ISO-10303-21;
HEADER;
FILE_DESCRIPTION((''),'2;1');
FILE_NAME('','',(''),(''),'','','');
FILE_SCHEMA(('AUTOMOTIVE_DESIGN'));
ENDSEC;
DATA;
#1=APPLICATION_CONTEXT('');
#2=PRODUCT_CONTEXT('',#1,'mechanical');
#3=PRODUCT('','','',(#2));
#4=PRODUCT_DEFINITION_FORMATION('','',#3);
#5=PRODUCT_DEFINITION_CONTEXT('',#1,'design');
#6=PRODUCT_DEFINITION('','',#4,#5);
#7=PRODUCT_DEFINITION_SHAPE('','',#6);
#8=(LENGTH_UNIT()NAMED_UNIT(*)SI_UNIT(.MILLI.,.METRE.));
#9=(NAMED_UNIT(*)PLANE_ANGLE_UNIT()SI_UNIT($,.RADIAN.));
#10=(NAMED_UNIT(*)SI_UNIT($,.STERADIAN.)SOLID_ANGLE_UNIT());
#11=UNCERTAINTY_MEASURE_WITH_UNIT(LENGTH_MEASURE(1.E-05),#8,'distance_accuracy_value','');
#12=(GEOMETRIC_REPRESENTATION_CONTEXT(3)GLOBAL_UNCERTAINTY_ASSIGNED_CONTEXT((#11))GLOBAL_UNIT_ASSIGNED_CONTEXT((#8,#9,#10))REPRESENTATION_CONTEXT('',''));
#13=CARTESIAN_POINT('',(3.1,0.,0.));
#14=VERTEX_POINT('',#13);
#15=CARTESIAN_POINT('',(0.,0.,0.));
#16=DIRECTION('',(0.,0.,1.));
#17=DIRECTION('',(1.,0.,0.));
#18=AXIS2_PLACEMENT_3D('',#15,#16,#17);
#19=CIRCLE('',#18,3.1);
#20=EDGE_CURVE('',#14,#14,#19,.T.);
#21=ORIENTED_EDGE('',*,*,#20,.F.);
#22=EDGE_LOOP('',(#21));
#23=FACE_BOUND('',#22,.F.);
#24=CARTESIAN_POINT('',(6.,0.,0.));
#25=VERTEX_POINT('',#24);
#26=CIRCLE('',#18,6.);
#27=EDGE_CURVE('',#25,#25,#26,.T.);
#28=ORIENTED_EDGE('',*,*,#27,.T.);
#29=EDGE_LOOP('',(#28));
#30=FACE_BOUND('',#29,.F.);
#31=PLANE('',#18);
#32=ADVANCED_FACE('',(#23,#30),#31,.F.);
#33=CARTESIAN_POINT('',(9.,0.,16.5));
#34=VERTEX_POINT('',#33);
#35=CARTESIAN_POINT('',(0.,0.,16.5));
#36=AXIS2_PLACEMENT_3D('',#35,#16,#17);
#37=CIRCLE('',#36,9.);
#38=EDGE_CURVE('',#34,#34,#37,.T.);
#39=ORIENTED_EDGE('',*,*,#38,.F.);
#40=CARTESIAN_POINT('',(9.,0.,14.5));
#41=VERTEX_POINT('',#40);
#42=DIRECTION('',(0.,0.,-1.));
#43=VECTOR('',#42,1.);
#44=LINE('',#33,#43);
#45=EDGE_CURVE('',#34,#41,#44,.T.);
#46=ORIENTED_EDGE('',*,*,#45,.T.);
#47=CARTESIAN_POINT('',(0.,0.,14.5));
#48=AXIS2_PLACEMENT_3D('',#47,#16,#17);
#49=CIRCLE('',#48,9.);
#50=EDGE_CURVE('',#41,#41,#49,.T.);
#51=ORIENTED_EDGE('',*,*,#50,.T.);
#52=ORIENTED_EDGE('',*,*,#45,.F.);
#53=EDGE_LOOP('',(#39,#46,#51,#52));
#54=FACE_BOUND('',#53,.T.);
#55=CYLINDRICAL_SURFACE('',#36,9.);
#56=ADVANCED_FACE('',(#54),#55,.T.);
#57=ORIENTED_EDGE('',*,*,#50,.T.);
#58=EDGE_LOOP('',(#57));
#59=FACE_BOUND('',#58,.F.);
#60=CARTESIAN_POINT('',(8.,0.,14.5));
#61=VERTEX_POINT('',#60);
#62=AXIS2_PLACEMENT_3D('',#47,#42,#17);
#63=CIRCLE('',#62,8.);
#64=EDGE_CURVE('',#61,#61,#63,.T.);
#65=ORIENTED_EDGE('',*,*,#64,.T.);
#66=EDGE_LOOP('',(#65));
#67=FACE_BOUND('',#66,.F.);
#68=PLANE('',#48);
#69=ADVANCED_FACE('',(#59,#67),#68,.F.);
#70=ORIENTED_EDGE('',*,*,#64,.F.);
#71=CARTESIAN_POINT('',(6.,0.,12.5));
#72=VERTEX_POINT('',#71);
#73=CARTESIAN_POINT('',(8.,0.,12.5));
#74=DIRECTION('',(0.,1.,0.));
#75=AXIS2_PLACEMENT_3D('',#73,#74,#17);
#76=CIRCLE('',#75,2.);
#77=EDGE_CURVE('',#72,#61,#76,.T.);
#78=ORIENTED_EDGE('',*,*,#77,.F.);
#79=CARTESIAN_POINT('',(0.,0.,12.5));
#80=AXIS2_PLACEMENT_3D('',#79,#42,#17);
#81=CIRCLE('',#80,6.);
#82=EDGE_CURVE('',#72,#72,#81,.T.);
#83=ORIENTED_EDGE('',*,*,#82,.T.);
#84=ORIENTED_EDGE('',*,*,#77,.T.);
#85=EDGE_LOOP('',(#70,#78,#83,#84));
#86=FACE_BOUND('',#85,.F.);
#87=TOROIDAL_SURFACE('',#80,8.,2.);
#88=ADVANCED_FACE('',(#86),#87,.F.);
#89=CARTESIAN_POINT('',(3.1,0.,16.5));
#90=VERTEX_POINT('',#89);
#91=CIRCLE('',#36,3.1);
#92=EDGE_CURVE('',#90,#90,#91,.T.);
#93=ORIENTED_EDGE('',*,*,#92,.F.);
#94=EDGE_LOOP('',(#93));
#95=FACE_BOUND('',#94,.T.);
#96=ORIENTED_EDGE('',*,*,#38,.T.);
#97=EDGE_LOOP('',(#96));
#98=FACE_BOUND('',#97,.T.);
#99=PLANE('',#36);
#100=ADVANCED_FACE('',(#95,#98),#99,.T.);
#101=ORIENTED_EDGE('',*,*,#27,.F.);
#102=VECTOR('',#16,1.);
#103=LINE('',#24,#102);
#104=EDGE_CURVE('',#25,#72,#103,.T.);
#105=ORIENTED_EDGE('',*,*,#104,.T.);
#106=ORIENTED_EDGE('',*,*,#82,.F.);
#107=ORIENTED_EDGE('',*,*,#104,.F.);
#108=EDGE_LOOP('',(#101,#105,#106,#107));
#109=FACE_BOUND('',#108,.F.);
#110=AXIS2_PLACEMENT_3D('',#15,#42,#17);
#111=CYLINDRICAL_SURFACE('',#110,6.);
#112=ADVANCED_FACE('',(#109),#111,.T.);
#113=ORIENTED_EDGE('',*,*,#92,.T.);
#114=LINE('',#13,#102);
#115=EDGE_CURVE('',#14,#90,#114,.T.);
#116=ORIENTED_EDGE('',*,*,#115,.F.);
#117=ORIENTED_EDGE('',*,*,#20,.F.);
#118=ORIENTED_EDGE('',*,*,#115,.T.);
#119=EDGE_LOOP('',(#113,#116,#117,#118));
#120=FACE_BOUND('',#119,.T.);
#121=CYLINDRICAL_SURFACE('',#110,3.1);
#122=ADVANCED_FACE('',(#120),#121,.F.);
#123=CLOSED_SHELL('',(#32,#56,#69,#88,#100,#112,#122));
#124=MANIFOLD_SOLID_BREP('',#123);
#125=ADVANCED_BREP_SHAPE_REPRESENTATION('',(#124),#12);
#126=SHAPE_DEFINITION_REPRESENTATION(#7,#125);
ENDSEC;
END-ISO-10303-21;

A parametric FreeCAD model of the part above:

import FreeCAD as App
import Part
import Sketcher


def edges_at(feature, points):
    """Names of the edges that pass closest to the given points."""
    edges = feature.Shape.Edges
    near = lambda p: min(range(len(edges)), key=lambda i: edges[i].distToShape(Part.Vertex(*p))[0])
    return sorted({f"Edge{near(p) + 1}" for p in points})

doc = App.newDocument("Part")
params = doc.addObject("Spreadsheet::Sheet", "Params")
for row, (alias, value) in enumerate([
    ("sketch1_diameter", "12 mm"),
    ("sketch1_diameter2", "6.2 mm"),
    ("pad1_length", "16.5 mm"),
    ("sketch2_diameter", "18 mm"),
    ("sketch2_diameter2", "9 mm"),
    ("pad2_length", "2 mm"),
    ("fillet_radius", "2 mm"),
], start=1):
    params.set(f"A{row}", alias)
    params.set(f"B{row}", "=" + value)
    params.setAlias(f"B{row}", alias)

body = doc.addObject("PartDesign::Body", "Body")

# Sketch on XY plane
sketch1 = body.newObject("Sketcher::SketchObject", "Sketch")
sketch1.AttachmentSupport = (doc.getObject("XY_Plane"), [""])
sketch1.MapMode = "FlatFace"
sketch1.addGeometry(Part.Circle(App.Vector(0, 0, 0), App.Vector(0, 0, 1), 6), False)
sketch1.addGeometry(Part.Circle(App.Vector(0, 0, 0), App.Vector(0, 0, 1), 3.1), False)
sketch1.addConstraint(Sketcher.Constraint("Coincident", 0, 3, -1, 1))
sketch1.addConstraint(Sketcher.Constraint("Coincident", 1, 3, -1, 1))
sketch1.addConstraint(Sketcher.Constraint("Diameter", 0, 12.0))
sketch1.addConstraint(Sketcher.Constraint("Diameter", 1, 6.2))
sketch1.setExpression("Constraints[2]", "Params.sketch1_diameter")
sketch1.setExpression("Constraints[3]", "Params.sketch1_diameter2")
pad1 = body.newObject("PartDesign::Pad", "Pad")
pad1.Profile = sketch1
pad1.setExpression("Length", "Params.pad1_length")

# Sketch on XY plane
sketch2 = body.newObject("Sketcher::SketchObject", "Sketch001")
sketch2.AttachmentSupport = (doc.getObject("XY_Plane"), [""])
sketch2.MapMode = "FlatFace"
sketch2.AttachmentOffset = App.Placement(App.Vector(0, 0, 16.5), App.Rotation())
sketch2.addGeometry(Part.Circle(App.Vector(0, 0, 0), App.Vector(0, 0, 1), 9), False)
sketch2.addGeometry(Part.Circle(App.Vector(0, 0, 0), App.Vector(0, 0, 1), 4.5), False)
sketch2.addConstraint(Sketcher.Constraint("Coincident", 0, 3, -1, 1))
sketch2.addConstraint(Sketcher.Constraint("Coincident", 1, 3, -1, 1))
sketch2.addConstraint(Sketcher.Constraint("Diameter", 0, 18.0))
sketch2.addConstraint(Sketcher.Constraint("Diameter", 1, 9.0))
sketch2.setExpression("Constraints[2]", "Params.sketch2_diameter")
sketch2.setExpression("Constraints[3]", "Params.sketch2_diameter2")
pad2 = body.newObject("PartDesign::Pad", "Pad001")
pad2.Profile = sketch2
pad2.setExpression("Length", "Params.pad2_length")
pad2.Reversed = True
doc.recompute()

fillet = body.newObject("PartDesign::Fillet", "Fillet")
fillet.Base = (pad2, edges_at(pad2, [(-6, 0, 14.5)]))
fillet.setExpression("Radius", "Params.fillet_radius")

doc.recompute()
